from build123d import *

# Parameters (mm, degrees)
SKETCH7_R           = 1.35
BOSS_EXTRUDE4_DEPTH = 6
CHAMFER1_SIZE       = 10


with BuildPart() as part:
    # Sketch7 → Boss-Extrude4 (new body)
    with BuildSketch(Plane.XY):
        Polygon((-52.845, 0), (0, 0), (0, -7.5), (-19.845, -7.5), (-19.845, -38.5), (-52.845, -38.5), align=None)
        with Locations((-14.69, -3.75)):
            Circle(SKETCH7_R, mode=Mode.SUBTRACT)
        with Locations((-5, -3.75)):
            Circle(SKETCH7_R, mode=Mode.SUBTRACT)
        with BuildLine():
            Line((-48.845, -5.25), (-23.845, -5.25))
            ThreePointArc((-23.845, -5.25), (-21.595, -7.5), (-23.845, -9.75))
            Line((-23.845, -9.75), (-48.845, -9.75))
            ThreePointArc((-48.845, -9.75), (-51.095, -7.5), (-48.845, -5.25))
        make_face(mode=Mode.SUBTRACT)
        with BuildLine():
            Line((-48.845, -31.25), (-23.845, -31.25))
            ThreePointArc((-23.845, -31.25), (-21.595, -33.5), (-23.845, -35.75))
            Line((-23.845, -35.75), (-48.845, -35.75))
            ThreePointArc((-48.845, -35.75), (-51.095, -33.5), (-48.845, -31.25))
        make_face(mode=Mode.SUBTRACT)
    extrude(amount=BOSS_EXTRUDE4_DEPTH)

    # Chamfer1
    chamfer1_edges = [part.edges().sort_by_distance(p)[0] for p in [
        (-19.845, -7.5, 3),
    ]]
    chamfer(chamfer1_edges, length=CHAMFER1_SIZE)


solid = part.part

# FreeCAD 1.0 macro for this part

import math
import FreeCAD as App
import Part
import Sketcher

V = App.Vector
Q = App.Units.Quantity


def edges_at(feature, points):
    """Names of the edges that pass closest to the given points."""
    edges = feature.Shape.Edges
    near = lambda p: min(range(len(edges)), key=lambda i: edges[i].distToShape(Part.Vertex(*p))[0])
    return sorted({f"Edge{near(p) + 1}" for p in points})


def add_polygon(sketch, points):
    """Adds a closed chain of lines whose ends are joined by coincident constraints."""
    first, n = sketch.GeometryCount, len(points)
    for a, b in zip(points, points[1:] + points[:1]):
        sketch.addGeometry(Part.LineSegment(App.Vector(*a, 0), App.Vector(*b, 0)), False)
    for i in range(n):
        sketch.addConstraint(Sketcher.Constraint("Coincident", first + i, 2, first + (i + 1) % n, 1))

doc = App.newDocument("Part")
body = doc.addObject("PartDesign::Body", "Body")

# Sketch on XY plane
sketch1 = body.newObject("Sketcher::SketchObject", "Sketch")
sketch1.AttachmentSupport = (doc.getObject("XY_Plane"), [""])
sketch1.MapMode = "FlatFace"
add_polygon(sketch1, [(0, 0), (-52.845, 0), (-52.845, -38.5), (-19.845, -38.5), (-19.845, -7.5), (0, -7.5)])  # lines 0-5
sketch1.addGeometry(Part.LineSegment(V(-48.845, -31.25, 0), V(-23.845, -31.25, 0)), False)  # 6
sketch1.addGeometry(Part.ArcOfCircle(Part.Circle(V(-23.845, -33.5, 0), V(0, 0, 1), 2.25), math.radians(-90), math.radians(90)), False)  # 7
sketch1.addGeometry(Part.LineSegment(V(-23.845, -35.75, 0), V(-48.845, -35.75, 0)), False)  # 8
sketch1.addGeometry(Part.ArcOfCircle(Part.Circle(V(-48.845, -33.5, 0), V(0, 0, 1), 2.25), math.radians(90), math.radians(270)), False)  # 9
sketch1.addGeometry(Part.Circle(V(-5, -3.75, 0), V(0, 0, 1), 1.35), False)  # 10
sketch1.addGeometry(Part.Circle(V(-14.69, -3.75, 0), V(0, 0, 1), 1.35), False)  # 11
sketch1.addGeometry(Part.LineSegment(V(-48.845, -5.25, 0), V(-23.845, -5.25, 0)), False)  # 12
sketch1.addGeometry(Part.ArcOfCircle(Part.Circle(V(-23.845, -7.5, 0), V(0, 0, 1), 2.25), math.radians(-90), math.radians(90)), False)  # 13
sketch1.addGeometry(Part.LineSegment(V(-23.845, -9.75, 0), V(-48.845, -9.75, 0)), False)  # 14
sketch1.addGeometry(Part.ArcOfCircle(Part.Circle(V(-48.845, -7.5, 0), V(0, 0, 1), 2.25), math.radians(90), math.radians(270)), False)  # 15
sketch1.addConstraint(Sketcher.Constraint("Tangent", 6, 2, 7, 2))
sketch1.addConstraint(Sketcher.Constraint("Tangent", 7, 1, 8, 1))
sketch1.addConstraint(Sketcher.Constraint("Tangent", 8, 2, 9, 2))
sketch1.addConstraint(Sketcher.Constraint("Tangent", 9, 1, 6, 1))
sketch1.addConstraint(Sketcher.Constraint("Tangent", 12, 2, 13, 2))
sketch1.addConstraint(Sketcher.Constraint("Tangent", 13, 1, 14, 1))
sketch1.addConstraint(Sketcher.Constraint("Tangent", 14, 2, 15, 2))
sketch1.addConstraint(Sketcher.Constraint("Tangent", 15, 1, 12, 1))
sketch1.addConstraint(Sketcher.Constraint("Horizontal", 0))
sketch1.addConstraint(Sketcher.Constraint("Vertical", 1))
sketch1.addConstraint(Sketcher.Constraint("Horizontal", 2))
sketch1.addConstraint(Sketcher.Constraint("Vertical", 3))
sketch1.addConstraint(Sketcher.Constraint("Horizontal", 4))
sketch1.addConstraint(Sketcher.Constraint("Vertical", 5))
sketch1.addConstraint(Sketcher.Constraint("Horizontal", 6))
sketch1.addConstraint(Sketcher.Constraint("Horizontal", 8))
sketch1.addConstraint(Sketcher.Constraint("Horizontal", 12))
sketch1.addConstraint(Sketcher.Constraint("Horizontal", 14))
sketch1.addConstraint(Sketcher.Constraint("Coincident", 5, 2, -1, 1))
sketch1.addConstraint(Sketcher.Constraint("Equal", 10, 11))
sketch1.addConstraint(Sketcher.Constraint("Equal", 9, 13))
sketch1.addConstraint(Sketcher.Constraint("Horizontal", 10, 3, 11, 3))
sketch1.addConstraint(Sketcher.Constraint("Horizontal", 15, 3, 3, 2))
sketch1.addConstraint(Sketcher.Constraint("Vertical", 7, 3, 13, 3))
sketch1.addConstraint(Sketcher.Constraint("Vertical", 9, 3, 15, 3))
sketch1.addConstraint(Sketcher.Constraint("Diameter", 10, Q("2.7 mm")))
sketch1.addConstraint(Sketcher.Constraint("DistanceX", 2, 1, 2, 2, Q("33 mm")))
sketch1.addConstraint(Sketcher.Constraint("DistanceX", 6, 1, 6, 2, Q("25 mm")))
sketch1.addConstraint(Sketcher.Constraint("DistanceY", 3, 1, 3, 2, Q("31 mm")))
sketch1.addConstraint(Sketcher.Constraint("Radius", 7, Q("2.25 mm")))
sketch1.addConstraint(Sketcher.Constraint("DistanceY", 1, 2, 1, 1, Q("38.5 mm")))
sketch1.addConstraint(Sketcher.Constraint("DistanceX", 10, 3, -1, 1, Q("5 mm")))
sketch1.addConstraint(Sketcher.Constraint("DistanceY", 7, 3, 13, 3, Q("26 mm")))
sketch1.addConstraint(Sketcher.Constraint("DistanceX", 0, 2, 15, 3, Q("4 mm")))
sketch1.addConstraint(Sketcher.Constraint("DistanceY", 13, 1, 11, 3, Q("6 mm")))
sketch1.addConstraint(Sketcher.Constraint("DistanceX", 0, 2, 0, 1, Q("52.845 mm")))
sketch1.addConstraint(Sketcher.Constraint("DistanceX", 11, 3, -1, 1, Q("14.69 mm")))
pad1 = body.newObject("PartDesign::Pad", "Pad")
pad1.Profile = sketch1
pad1.Length = 6
doc.recompute()

chamfer = body.newObject("PartDesign::Chamfer", "Chamfer")
chamfer.Base = (pad1, edges_at(pad1, [(-19.845, -7.5, 3)]))
chamfer.Size = 10

doc.recompute()
